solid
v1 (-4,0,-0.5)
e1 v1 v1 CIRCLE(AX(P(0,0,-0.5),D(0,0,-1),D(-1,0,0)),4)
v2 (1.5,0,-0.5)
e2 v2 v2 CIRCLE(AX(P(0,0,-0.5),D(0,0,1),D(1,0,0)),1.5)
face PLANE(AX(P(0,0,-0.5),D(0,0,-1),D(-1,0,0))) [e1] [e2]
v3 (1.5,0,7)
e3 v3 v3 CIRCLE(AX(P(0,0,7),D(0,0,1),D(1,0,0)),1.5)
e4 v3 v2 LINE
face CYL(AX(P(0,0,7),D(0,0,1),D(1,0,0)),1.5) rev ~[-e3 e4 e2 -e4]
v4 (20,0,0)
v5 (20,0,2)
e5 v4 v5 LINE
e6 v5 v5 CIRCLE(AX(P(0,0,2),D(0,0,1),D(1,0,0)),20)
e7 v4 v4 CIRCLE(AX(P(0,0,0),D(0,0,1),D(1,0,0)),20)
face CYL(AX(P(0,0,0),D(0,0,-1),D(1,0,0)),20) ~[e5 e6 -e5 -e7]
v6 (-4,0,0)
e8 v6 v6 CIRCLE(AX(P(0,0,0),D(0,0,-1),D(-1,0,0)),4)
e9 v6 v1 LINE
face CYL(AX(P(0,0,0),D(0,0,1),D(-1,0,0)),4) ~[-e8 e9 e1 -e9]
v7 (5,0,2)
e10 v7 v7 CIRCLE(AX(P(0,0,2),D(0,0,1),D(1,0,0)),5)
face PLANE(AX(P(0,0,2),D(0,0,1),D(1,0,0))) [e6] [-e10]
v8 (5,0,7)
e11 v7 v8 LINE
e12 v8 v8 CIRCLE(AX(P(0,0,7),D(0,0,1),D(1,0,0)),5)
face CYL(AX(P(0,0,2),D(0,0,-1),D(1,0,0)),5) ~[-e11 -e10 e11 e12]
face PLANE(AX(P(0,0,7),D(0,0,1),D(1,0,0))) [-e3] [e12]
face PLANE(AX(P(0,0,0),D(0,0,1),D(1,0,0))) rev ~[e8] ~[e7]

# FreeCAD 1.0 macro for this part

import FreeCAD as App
import Part
import Sketcher
from FreeCAD import Vector
Q = App.Units.Quantity

doc = App.newDocument("Part")
body = doc.addObject("PartDesign::Body", "Body")

sketch1 = body.newObject("Sketcher::SketchObject", "Sketch")
sketch1.AttachmentSupport = (doc.getObject("XY_Plane"), [""])
sketch1.MapMode = "FlatFace"
sketch1.addGeometry(Part.Circle(Vector(0, 0, 0), Vector(0, 0, 1), 20), False)
sketch1.addConstraint(Sketcher.Constraint("Coincident", 0, 3, -1, 1))
sketch1.addConstraint(Sketcher.Constraint("Diameter", 0, Q("40 mm")))
pad1 = body.newObject("PartDesign::Pad", "Pad")
pad1.Profile = sketch1
pad1.Length = 2

sketch2 = body.newObject("Sketcher::SketchObject", "Sketch001")
sketch2.AttachmentSupport = (doc.getObject("XY_Plane"), [""])
sketch2.MapMode = "FlatFace"
sketch2.AttachmentOffset = App.Placement(Vector(0, 0, 2), App.Rotation())
sketch2.addGeometry(Part.Circle(Vector(0, 0, 0), Vector(0, 0, 1), 5), False)
sketch2.addConstraint(Sketcher.Constraint("Coincident", 0, 3, -1, 1))
sketch2.addConstraint(Sketcher.Constraint("Diameter", 0, Q("10 mm")))
pad2 = body.newObject("PartDesign::Pad", "Pad001")
pad2.Profile = sketch2
pad2.Length = 5

sketch3 = body.newObject("Sketcher::SketchObject", "Sketch002")
sketch3.AttachmentSupport = (doc.getObject("XY_Plane"), [""])
sketch3.MapMode = "FlatFace"
sketch3.addGeometry(Part.Circle(Vector(0, 0, 0), Vector(0, 0, 1), 4), False)
sketch3.addConstraint(Sketcher.Constraint("Coincident", 0, 3, -1, 1))
sketch3.addConstraint(Sketcher.Constraint("Diameter", 0, Q("8 mm")))
pad3 = body.newObject("PartDesign::Pad", "Pad002")
pad3.Profile = sketch3
pad3.Length = 0.5
pad3.Reversed = True

sketch4 = body.newObject("Sketcher::SketchObject", "Sketch003")
sketch4.AttachmentSupport = (doc.getObject("XY_Plane"), [""])
sketch4.MapMode = "FlatFace"
sketch4.AttachmentOffset = App.Placement(Vector(0, 0, 7), App.Rotation())
sketch4.addGeometry(Part.Circle(Vector(0, 0, 0), Vector(0, 0, 1), 1.5), False)
sketch4.addConstraint(Sketcher.Constraint("Coincident", 0, 3, -1, 1))
sketch4.addConstraint(Sketcher.Constraint("Diameter", 0, Q("3 mm")))
pocket1 = body.newObject("PartDesign::Pocket", "Pocket")
pocket1.Profile = sketch4
pocket1.Length = 10

doc.recompute()
